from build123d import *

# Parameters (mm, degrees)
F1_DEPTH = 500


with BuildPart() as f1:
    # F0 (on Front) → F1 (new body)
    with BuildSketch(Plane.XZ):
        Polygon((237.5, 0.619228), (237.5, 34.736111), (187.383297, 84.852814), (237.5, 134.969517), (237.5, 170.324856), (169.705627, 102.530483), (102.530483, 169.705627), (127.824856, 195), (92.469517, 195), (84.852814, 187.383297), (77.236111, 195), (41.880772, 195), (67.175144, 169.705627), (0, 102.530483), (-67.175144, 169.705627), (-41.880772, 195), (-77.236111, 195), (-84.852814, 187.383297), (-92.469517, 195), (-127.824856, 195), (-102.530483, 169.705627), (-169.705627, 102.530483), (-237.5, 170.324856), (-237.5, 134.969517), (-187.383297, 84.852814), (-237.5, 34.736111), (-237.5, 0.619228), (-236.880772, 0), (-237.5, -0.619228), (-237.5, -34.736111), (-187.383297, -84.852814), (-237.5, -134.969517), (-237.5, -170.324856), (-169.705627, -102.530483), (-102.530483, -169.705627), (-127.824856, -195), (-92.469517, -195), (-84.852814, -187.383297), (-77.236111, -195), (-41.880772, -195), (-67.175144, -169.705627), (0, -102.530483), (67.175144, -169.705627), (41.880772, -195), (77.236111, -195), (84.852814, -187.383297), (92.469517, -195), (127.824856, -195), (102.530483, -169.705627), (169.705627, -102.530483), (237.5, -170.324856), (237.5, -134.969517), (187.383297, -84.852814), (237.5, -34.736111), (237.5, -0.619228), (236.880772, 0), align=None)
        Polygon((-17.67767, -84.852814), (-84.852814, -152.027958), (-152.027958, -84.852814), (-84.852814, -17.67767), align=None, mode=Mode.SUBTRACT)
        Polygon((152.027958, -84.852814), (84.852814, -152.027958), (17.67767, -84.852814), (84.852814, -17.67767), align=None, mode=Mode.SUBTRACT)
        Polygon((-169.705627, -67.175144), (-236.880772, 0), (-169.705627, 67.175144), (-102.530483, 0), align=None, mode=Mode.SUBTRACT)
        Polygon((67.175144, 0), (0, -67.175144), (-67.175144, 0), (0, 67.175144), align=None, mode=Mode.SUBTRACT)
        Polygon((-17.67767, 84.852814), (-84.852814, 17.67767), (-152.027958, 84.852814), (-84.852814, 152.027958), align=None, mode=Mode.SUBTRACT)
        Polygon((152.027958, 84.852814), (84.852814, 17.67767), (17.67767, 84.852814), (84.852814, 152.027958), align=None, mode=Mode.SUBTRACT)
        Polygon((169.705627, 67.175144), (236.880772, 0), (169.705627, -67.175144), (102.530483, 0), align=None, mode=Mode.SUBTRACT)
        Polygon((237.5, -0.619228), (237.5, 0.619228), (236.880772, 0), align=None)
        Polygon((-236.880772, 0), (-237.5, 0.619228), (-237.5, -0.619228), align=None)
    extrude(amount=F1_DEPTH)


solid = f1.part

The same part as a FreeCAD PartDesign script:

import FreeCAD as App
import Part
import Sketcher
from FreeCAD import Vector
Q = App.Units.Quantity


def add_polygon(sketch, points):
    """Adds a closed chain of lines whose ends are joined by coincident constraints."""
    first, n = sketch.GeometryCount, len(points)
    for a, b in zip(points, points[1:] + points[:1]):
        sketch.addGeometry(Part.LineSegment(App.Vector(*a, 0), App.Vector(*b, 0)), False)
    for i in range(n):
        sketch.addConstraint(Sketcher.Constraint("Coincident", first + i, 2, first + (i + 1) % n, 1))

doc = App.newDocument("Part")
body = doc.addObject("PartDesign::Body", "Body")

# Sketch on XZ plane
sketch1 = doc.addObject("Sketcher::SketchObject", "Sketch")
body.addObject(sketch1)
sketch1.AttachmentSupport = (doc.XZ_Plane, [""])
sketch1.MapMode = "FlatFace"
add_polygon(sketch1, [(-238, 35), (-238, -35), (-187, -85), (-238, -135), (-238, -170), (-170, -103), (-103, -170), (-128, -195), (-92, -195), (-85, -187), (-77, -195), (-42, -195), (-67, -170), (0, -103), (67, -170), (42, -195), (77, -195), (85, -187), (92, -195), (128, -195), (103, -170), (170, -103), (238, -170), (238, -135), (187, -85), (238, -35), (238, 35), (187, 85), (238, 135), (238, 170), (170, 103), (103, 170), (128, 195), (92, 195), (85, 187), (77, 195), (42, 195), (67, 170), (0, 103), (-67, 170), (-42, 195), (-77, 195), (-85, 187), (-92, 195), (-128, 195), (-103, 170), (-170, 103), (-238, 170), (-238, 135), (-187, 85)])  # lines 0-49
add_polygon(sketch1, [(-85, -18), (-18, -85), (-85, -152), (-152, -85)])  # lines 50-53
add_polygon(sketch1, [(85, -18), (152, -85), (85, -152), (18, -85)])  # lines 54-57
add_polygon(sketch1, [(-170, -67), (-237, 0), (-170, 67), (-103, 0)])  # lines 58-61
add_polygon(sketch1, [(0, 67), (67, 0), (0, -67), (-67, 0)])  # lines 62-65
add_polygon(sketch1, [(-85, 152), (-18, 85), (-85, 18), (-152, 85)])  # lines 66-69
add_polygon(sketch1, [(170, 67), (237, 0), (170, -67), (103, 0)])  # lines 70-73
add_polygon(sketch1, [(85, 152), (152, 85), (85, 18), (18, 85)])  # lines 74-77
sketch1.addConstraint(Sketcher.Constraint("Vertical", 0))
sketch1.addConstraint(Sketcher.Constraint("Vertical", 3))
sketch1.addConstraint(Sketcher.Constraint("Horizontal", 7))
sketch1.addConstraint(Sketcher.Constraint("Horizontal", 10))
sketch1.addConstraint(Sketcher.Constraint("Horizontal", 15))
sketch1.addConstraint(Sketcher.Constraint("Horizontal", 18))
sketch1.addConstraint(Sketcher.Constraint("Vertical", 22))
sketch1.addConstraint(Sketcher.Constraint("Vertical", 25))
sketch1.addConstraint(Sketcher.Constraint("Vertical", 28))
sketch1.addConstraint(Sketcher.Constraint("Horizontal", 32))
sketch1.addConstraint(Sketcher.Constraint("Horizontal", 35))
sketch1.addConstraint(Sketcher.Constraint("Horizontal", 40))
sketch1.addConstraint(Sketcher.Constraint("Horizontal", 43))
sketch1.addConstraint(Sketcher.Constraint("Vertical", 47))
sketch1.addConstraint(Sketcher.Constraint("Symmetric", 0, 2, 25, 2, -1, 1))
sketch1.addConstraint(Sketcher.Constraint("Symmetric", 1, 2, 26, 2, -1, 1))
sketch1.addConstraint(Sketcher.Constraint("Symmetric", 2, 2, 27, 2, -1, 1))
sketch1.addConstraint(Sketcher.Constraint("Symmetric", 4, 2, 29, 2, -1, 1))
sketch1.addConstraint(Sketcher.Constraint("Symmetric", 5, 2, 30, 2, -1, 1))
sketch1.addConstraint(Sketcher.Constraint("Symmetric", 6, 2, 31, 2, -1, 1))
sketch1.addConstraint(Sketcher.Constraint("Symmetric", 8, 2, 33, 2, -1, 1))
sketch1.addConstraint(Sketcher.Constraint("Symmetric", 9, 2, 34, 2, -1, 1))
sketch1.addConstraint(Sketcher.Constraint("Symmetric", 11, 2, 36, 2, -1, 1))
sketch1.addConstraint(Sketcher.Constraint("Symmetric", 12, 2, 37, 2, -1, 1))
sketch1.addConstraint(Sketcher.Constraint("Symmetric", 13, 2, 38, 2, -1, 1))
sketch1.addConstraint(Sketcher.Constraint("Symmetric", 14, 2, 39, 2, -1, 1))
sketch1.addConstraint(Sketcher.Constraint("Symmetric", 16, 2, 41, 2, -1, 1))
sketch1.addConstraint(Sketcher.Constraint("Symmetric", 17, 2, 42, 2, -1, 1))
sketch1.addConstraint(Sketcher.Constraint("Symmetric", 19, 2, 44, 2, -1, 1))
sketch1.addConstraint(Sketcher.Constraint("Symmetric", 20, 2, 45, 2, -1, 1))
sketch1.addConstraint(Sketcher.Constraint("Symmetric", 21, 2, 46, 2, -1, 1))
sketch1.addConstraint(Sketcher.Constraint("Symmetric", 23, 2, 48, 2, -1, 1))
sketch1.addConstraint(Sketcher.Constraint("Symmetric", 62, 2, 64, 2, -1, 1))
sketch1.addConstraint(Sketcher.Constraint("Symmetric", 63, 2, 65, 2, -1, 1))
sketch1.addConstraint(Sketcher.Constraint("Symmetric", 56, 2, 66, 2, -1, 1))
sketch1.addConstraint(Sketcher.Constraint("Symmetric", 57, 2, 67, 2, -1, 1))
sketch1.addConstraint(Sketcher.Constraint("Symmetric", 54, 2, 68, 2, -1, 1))
sketch1.addConstraint(Sketcher.Constraint("Symmetric", 55, 2, 69, 2, -1, 1))
sketch1.addConstraint(Sketcher.Constraint("Symmetric", 58, 2, 70, 2, -1, 1))
sketch1.addConstraint(Sketcher.Constraint("Symmetric", 59, 2, 71, 2, -1, 1))
sketch1.addConstraint(Sketcher.Constraint("Symmetric", 60, 2, 72, 2, -1, 1))
sketch1.addConstraint(Sketcher.Constraint("Symmetric", 61, 2, 73, 2, -1, 1))
sketch1.addConstraint(Sketcher.Constraint("Symmetric", 52, 2, 74, 2, -1, 1))
sketch1.addConstraint(Sketcher.Constraint("Symmetric", 53, 2, 75, 2, -1, 1))
sketch1.addConstraint(Sketcher.Constraint("Symmetric", 50, 2, 76, 2, -1, 1))
sketch1.addConstraint(Sketcher.Constraint("Symmetric", 51, 2, 77, 2, -1, 1))
sketch1.addConstraint(Sketcher.Constraint("Symmetric", 11, 2, 13, 2, -2))
sketch1.addConstraint(Sketcher.Constraint("Symmetric", 10, 2, 14, 2, -2))
sketch1.addConstraint(Sketcher.Constraint("Symmetric", 8, 2, 16, 2, -2))
sketch1.addConstraint(Sketcher.Constraint("Symmetric", 7, 2, 17, 2, -2))
sketch1.addConstraint(Sketcher.Constraint("Symmetric", 5, 2, 19, 2, -2))
sketch1.addConstraint(Sketcher.Constraint("Symmetric", 4, 2, 20, 2, -2))
sketch1.addConstraint(Sketcher.Constraint("Symmetric", 3, 2, 21, 2, -2))
sketch1.addConstraint(Sketcher.Constraint("Symmetric", 1, 2, 23, 2, -2))
sketch1.addConstraint(Sketcher.Constraint("Symmetric", 52, 2, 54, 2, -2))
sketch1.addConstraint(Sketcher.Constraint("Symmetric", 51, 2, 55, 2, -2))
sketch1.addConstraint(Sketcher.Constraint("Symmetric", 50, 2, 56, 2, -2))
sketch1.addConstraint(Sketcher.Constraint("Symmetric", 53, 2, 57, 2, -2))
sketch1.addConstraint(Sketcher.Constraint("Symmetric", 61, 2, 71, 2, -2))
sketch1.addConstraint(Sketcher.Constraint("PointOnObject", 12, 2, -2))
sketch1.addConstraint(Sketcher.Constraint("PointOnObject", 58, 2, -1))
sketch1.addConstraint(Sketcher.Constraint("PointOnObject", 60, 2, -1))
sketch1.addConstraint(Sketcher.Constraint("PointOnObject", 62, 2, -1))
sketch1.addConstraint(Sketcher.Constraint("PointOnObject", 63, 2, -2))
sketch1.addConstraint(Sketcher.Constraint("Perpendicular", 1, 2))
sketch1.addConstraint(Sketcher.Constraint("Parallel", 2, 4))
sketch1.addConstraint(Sketcher.Constraint("Perpendicular", 4, 5))
sketch1.addConstraint(Sketcher.Constraint("Perpendicular", 5, 6))
sketch1.addConstraint(Sketcher.Constraint("Parallel", 6, 8))
sketch1.addConstraint(Sketcher.Constraint("Perpendicular", 8, 9))
sketch1.addConstraint(Sketcher.Constraint("Parallel", 9, 11))
sketch1.addConstraint(Sketcher.Constraint("Perpendicular", 11, 12))
sketch1.addConstraint(Sketcher.Constraint("Perpendicular", 12, 13))
sketch1.addConstraint(Sketcher.Constraint("Parallel", 14, 16))
sketch1.addConstraint(Sketcher.Constraint("Parallel", 17, 19))
sketch1.addConstraint(Sketcher.Constraint("Parallel", 21, 23))
sketch1.addConstraint(Sketcher.Constraint("Perpendicular", 23, 24))
sketch1.addConstraint(Sketcher.Constraint("Parallel", 27, 29))
sketch1.addConstraint(Sketcher.Constraint("Parallel", 31, 33))
sketch1.addConstraint(Sketcher.Constraint("Parallel", 34, 36))
sketch1.addConstraint(Sketcher.Constraint("Parallel", 39, 41))
sketch1.addConstraint(Sketcher.Constraint("Parallel", 42, 44))
sketch1.addConstraint(Sketcher.Constraint("Parallel", 46, 48))
sketch1.addConstraint(Sketcher.Constraint("Perpendicular", 48, 49))
sketch1.addConstraint(Sketcher.Constraint("Perpendicular", 49, 50))
sketch1.addConstraint(Sketcher.Constraint("Perpendicular", 50, 51))
sketch1.addConstraint(Sketcher.Constraint("Perpendicular", 51, 52))
sketch1.addConstraint(Sketcher.Constraint("Perpendicular", 52, 53))
sketch1.addConstraint(Sketcher.Constraint("Perpendicular", 57, 58))
sketch1.addConstraint(Sketcher.Constraint("Perpendicular", 59, 60))
sketch1.addConstraint(Sketcher.Constraint("Perpendicular", 61, 62))
sketch1.addConstraint(Sketcher.Constraint("Horizontal", 7, 2, 9, 2))
sketch1.addConstraint(Sketcher.Constraint("Horizontal", 5, 2, 11, 2))
sketch1.addConstraint(Sketcher.Constraint("Horizontal", 4, 2, 12, 2))
sketch1.addConstraint(Sketcher.Constraint("Horizontal", 23, 2, 50, 2))
sketch1.addConstraint(Sketcher.Constraint("Horizontal", 50, 2, 52, 2))
sketch1.addConstraint(Sketcher.Constraint("Horizontal", 61, 2, 63, 2))
sketch1.addConstraint(Sketcher.Constraint("Vertical", 0, 2, 2, 2))
sketch1.addConstraint(Sketcher.Constraint("Vertical", 41, 2, 51, 2))
sketch1.addConstraint(Sketcher.Constraint("Vertical", 45, 2, 59, 2))
sketch1.addConstraint(Sketcher.Constraint("Vertical", 44, 2, 60, 2))
sketch1.addConstraint(Sketcher.Constraint("Equal", 7, 10))
sketch1.addConstraint(Sketcher.Constraint("Equal", 43, 3))
sketch1.addConstraint(Sketcher.Constraint("Equal", 45, 50))
sketch1.addConstraint(Sketcher.Constraint("Distance", 5, Q("95 mm")))
sketch1.addConstraint(Sketcher.Constraint("DistanceY", 6, 2, -1, 1, Q("195 mm")))
sketch1.addConstraint(Sketcher.Constraint("DistanceX", 0, 2, -1, 1, Q("237.5 mm")))
sketch1.addConstraint(Sketcher.Constraint("DistanceX", 7, 1, 7, 2, Q("35.355339 mm")))
sketch1.addConstraint(Sketcher.Constraint("Distance", 1, Q("70.875721 mm")))
sketch1.addConstraint(Sketcher.Constraint("Distance", 4, Q("95.875722 mm")))
sketch1.addConstraint(Sketcher.Constraint("DistanceY", 0, 2, 0, 1, Q("69.472222 mm")))
pad1 = doc.addObject("PartDesign::Pad", "Pad")
body.addObject(pad1)
pad1.Profile = sketch1
pad1.Length = 500

doc.recompute()
